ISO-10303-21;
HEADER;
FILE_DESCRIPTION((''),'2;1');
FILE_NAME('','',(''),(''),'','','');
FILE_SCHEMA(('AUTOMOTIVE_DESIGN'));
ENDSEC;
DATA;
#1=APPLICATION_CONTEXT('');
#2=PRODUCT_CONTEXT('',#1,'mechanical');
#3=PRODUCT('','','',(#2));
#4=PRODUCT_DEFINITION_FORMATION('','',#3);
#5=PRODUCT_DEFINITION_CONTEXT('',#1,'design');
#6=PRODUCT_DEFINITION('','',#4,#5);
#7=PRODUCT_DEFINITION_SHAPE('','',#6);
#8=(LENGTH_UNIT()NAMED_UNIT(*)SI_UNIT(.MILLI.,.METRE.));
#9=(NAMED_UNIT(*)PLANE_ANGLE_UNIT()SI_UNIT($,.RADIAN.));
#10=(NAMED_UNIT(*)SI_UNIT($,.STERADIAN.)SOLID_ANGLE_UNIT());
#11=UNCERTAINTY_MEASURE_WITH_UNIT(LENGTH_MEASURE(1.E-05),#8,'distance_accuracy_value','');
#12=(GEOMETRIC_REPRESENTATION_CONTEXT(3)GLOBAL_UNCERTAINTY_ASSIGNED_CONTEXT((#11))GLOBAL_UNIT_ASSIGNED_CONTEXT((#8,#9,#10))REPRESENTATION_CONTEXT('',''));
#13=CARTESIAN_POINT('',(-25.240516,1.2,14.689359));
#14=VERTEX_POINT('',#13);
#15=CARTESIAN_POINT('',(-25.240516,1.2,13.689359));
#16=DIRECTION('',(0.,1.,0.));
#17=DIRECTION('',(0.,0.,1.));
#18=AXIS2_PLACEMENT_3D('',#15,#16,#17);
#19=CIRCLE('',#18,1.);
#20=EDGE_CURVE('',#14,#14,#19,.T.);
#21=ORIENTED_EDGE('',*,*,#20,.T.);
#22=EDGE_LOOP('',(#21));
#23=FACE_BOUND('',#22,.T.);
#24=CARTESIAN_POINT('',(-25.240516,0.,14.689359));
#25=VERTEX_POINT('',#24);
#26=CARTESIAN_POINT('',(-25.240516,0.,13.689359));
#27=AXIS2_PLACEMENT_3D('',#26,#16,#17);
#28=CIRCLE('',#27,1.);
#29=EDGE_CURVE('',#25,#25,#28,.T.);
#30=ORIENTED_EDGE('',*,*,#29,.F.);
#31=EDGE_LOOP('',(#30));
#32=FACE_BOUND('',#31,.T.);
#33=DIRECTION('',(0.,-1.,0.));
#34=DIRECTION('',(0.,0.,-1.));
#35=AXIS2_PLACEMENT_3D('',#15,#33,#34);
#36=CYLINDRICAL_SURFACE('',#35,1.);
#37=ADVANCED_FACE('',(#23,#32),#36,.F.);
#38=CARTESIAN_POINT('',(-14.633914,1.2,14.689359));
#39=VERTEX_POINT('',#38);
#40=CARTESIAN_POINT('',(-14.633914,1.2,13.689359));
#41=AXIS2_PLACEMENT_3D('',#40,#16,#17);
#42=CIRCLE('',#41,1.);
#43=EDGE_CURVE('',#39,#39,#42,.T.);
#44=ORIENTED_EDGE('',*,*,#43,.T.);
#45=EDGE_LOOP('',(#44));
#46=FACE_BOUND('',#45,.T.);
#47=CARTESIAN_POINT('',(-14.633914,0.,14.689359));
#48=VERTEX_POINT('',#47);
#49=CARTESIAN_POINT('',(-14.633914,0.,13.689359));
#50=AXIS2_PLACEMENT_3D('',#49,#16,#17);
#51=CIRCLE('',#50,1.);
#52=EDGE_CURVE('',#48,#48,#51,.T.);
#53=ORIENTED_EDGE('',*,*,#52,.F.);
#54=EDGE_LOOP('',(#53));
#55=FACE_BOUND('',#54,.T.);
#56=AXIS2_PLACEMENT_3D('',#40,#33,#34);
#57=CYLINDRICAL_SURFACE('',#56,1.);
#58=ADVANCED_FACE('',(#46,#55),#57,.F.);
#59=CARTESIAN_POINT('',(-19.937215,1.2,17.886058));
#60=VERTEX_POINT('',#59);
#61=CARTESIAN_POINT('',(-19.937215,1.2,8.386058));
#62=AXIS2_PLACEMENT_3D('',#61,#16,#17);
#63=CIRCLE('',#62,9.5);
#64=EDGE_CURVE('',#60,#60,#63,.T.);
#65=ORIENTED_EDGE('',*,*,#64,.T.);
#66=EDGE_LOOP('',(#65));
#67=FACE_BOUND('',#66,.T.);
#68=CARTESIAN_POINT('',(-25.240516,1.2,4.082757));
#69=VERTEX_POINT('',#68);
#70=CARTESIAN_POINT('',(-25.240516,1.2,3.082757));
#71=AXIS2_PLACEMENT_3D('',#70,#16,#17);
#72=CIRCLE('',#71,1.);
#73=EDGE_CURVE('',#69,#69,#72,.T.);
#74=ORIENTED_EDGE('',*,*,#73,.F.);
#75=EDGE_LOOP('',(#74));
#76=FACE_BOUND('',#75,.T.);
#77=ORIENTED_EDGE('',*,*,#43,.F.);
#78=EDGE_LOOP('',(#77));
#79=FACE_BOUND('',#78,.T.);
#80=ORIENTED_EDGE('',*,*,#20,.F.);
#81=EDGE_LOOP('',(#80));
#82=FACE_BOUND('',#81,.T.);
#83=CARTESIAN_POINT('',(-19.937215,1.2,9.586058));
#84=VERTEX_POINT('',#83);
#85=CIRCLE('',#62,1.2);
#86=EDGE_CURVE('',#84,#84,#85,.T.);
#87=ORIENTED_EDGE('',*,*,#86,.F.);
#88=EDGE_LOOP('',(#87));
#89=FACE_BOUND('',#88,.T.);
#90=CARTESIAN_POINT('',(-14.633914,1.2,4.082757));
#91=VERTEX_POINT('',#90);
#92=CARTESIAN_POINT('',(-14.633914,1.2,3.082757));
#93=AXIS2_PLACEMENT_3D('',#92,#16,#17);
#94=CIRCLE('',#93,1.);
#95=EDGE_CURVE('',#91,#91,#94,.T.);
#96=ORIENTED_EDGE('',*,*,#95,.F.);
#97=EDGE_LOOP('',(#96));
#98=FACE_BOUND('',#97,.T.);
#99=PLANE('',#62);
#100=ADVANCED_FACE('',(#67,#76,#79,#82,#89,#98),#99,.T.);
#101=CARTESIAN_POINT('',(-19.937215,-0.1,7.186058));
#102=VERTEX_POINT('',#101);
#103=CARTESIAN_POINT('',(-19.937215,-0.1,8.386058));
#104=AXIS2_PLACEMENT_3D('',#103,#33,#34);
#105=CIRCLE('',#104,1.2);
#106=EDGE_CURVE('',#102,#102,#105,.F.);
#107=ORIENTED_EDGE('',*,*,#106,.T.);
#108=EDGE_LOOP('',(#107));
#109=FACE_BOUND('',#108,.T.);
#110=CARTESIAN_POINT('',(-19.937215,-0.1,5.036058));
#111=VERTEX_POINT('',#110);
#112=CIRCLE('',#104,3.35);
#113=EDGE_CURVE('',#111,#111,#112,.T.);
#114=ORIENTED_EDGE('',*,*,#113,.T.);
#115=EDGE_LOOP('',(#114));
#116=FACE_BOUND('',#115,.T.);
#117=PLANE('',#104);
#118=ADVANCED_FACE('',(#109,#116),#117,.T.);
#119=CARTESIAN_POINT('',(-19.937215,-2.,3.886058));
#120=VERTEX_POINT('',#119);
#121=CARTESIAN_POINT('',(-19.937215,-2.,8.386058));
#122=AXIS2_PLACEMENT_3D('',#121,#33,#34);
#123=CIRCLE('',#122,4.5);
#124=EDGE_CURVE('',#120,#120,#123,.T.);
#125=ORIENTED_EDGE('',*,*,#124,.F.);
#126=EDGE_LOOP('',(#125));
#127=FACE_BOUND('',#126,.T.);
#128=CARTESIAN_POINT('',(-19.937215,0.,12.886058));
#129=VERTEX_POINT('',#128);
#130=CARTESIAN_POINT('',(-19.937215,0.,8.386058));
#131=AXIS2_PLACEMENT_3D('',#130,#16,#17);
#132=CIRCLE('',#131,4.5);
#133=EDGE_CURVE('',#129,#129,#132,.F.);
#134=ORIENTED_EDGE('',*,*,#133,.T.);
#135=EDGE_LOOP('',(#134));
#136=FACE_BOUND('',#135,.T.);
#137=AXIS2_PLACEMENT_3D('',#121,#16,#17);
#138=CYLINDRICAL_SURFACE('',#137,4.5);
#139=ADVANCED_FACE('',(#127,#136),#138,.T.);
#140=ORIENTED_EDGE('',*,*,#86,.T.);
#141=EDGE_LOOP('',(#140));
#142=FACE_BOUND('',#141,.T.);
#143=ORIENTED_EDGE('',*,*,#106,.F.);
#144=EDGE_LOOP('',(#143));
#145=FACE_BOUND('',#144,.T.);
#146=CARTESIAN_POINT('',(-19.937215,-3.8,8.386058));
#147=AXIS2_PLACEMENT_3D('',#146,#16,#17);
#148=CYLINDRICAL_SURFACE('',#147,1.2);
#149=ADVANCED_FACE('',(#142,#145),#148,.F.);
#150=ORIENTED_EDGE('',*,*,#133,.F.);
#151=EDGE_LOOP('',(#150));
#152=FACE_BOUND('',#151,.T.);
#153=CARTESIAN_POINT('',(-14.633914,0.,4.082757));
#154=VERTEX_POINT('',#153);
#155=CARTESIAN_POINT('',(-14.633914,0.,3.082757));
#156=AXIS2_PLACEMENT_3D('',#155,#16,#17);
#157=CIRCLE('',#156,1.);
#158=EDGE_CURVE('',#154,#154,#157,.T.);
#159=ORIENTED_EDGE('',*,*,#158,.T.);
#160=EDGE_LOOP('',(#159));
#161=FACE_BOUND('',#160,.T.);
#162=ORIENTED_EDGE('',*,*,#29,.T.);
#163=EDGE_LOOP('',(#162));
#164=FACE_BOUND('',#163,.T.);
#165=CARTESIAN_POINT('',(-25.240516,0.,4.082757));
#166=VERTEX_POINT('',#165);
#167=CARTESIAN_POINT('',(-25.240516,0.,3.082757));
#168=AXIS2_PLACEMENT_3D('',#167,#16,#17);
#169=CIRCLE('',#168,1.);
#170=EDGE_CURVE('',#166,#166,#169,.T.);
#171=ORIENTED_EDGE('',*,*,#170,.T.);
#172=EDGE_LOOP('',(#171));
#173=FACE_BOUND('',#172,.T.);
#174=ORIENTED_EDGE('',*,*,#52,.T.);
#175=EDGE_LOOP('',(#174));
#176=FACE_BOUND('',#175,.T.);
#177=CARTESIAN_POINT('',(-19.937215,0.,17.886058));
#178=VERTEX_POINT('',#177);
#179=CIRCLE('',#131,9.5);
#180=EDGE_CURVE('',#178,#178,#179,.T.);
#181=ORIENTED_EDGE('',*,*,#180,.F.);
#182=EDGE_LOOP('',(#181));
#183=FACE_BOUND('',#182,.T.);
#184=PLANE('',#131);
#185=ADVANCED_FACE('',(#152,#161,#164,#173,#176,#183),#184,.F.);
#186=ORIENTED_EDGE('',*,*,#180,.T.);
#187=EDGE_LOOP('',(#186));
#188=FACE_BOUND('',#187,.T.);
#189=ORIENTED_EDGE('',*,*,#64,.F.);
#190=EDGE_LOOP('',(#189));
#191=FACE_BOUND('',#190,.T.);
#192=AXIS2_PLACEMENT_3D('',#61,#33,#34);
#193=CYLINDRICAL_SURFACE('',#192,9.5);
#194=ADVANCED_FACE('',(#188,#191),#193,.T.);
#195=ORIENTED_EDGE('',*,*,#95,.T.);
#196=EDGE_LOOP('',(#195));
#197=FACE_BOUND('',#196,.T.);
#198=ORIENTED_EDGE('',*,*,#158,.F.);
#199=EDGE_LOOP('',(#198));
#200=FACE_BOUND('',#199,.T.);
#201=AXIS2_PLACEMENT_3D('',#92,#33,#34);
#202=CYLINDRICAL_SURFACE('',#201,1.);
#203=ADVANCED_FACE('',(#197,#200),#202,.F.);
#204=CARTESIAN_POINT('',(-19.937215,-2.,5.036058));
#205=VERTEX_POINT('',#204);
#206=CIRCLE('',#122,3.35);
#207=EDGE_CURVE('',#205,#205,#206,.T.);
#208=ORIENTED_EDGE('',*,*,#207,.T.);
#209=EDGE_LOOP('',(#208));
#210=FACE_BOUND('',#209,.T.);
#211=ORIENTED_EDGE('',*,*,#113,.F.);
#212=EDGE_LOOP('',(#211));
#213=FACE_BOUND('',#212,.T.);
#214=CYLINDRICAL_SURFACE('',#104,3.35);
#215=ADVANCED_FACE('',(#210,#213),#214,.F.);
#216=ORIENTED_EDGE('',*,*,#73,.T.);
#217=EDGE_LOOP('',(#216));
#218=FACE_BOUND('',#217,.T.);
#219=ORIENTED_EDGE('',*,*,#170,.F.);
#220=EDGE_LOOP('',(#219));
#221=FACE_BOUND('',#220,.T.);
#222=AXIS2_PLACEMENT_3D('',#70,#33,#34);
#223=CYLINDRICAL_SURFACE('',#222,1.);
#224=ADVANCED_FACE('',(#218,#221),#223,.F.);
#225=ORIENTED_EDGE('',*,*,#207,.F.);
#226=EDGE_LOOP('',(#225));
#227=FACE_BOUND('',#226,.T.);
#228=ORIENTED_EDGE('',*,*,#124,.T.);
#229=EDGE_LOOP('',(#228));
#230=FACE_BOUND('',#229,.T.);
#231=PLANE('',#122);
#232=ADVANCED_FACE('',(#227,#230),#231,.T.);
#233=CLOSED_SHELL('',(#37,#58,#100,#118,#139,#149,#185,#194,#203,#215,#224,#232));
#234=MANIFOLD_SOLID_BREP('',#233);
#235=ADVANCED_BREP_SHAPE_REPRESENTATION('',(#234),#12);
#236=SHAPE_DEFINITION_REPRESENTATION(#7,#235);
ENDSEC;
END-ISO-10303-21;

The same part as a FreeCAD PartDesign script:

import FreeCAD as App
import Part
import Sketcher

V = App.Vector
Q = App.Units.Quantity

doc = App.newDocument("Part")
body = doc.addObject("PartDesign::Body", "Body")

sketch1 = body.newObject("Sketcher::SketchObject", "Sketch")
sketch1.AttachmentSupport = (doc.getObject("XZ_Plane"), [""])
sketch1.MapMode = "FlatFace"
sketch1.addGeometry(Part.Circle(V(-19.937215, 8.386058, 0), V(0, 0, 1), 9.5), False)
sketch1.addGeometry(Part.Circle(V(-25.240516, 13.689359, 0), V(0, 0, 1), 1), False)
sketch1.addGeometry(Part.Circle(V(-14.633914, 13.689359, 0), V(0, 0, 1), 1), False)
sketch1.addGeometry(Part.Circle(V(-25.240516, 3.082757, 0), V(0, 0, 1), 1), False)
sketch1.addGeometry(Part.Circle(V(-14.633914, 3.082757, 0), V(0, 0, 1), 1), False)
sketch1.addConstraint(Sketcher.Constraint("Equal", 1, 2))
sketch1.addConstraint(Sketcher.Constraint("Equal", 2, 3))
sketch1.addConstraint(Sketcher.Constraint("Equal", 3, 4))
sketch1.addConstraint(Sketcher.Constraint("Horizontal", 1, 3, 2, 3))
sketch1.addConstraint(Sketcher.Constraint("Horizontal", 3, 3, 4, 3))
sketch1.addConstraint(Sketcher.Constraint("Vertical", 1, 3, 3, 3))
sketch1.addConstraint(Sketcher.Constraint("Vertical", 2, 3, 4, 3))
sketch1.addConstraint(Sketcher.Constraint("Diameter", 0, Q("19 mm")))
sketch1.addConstraint(Sketcher.Constraint("Diameter", 1, Q("2 mm")))
sketch1.addConstraint(Sketcher.Constraint("DistanceX", 1, 3, 0, 3, Q("5.303301 mm")))
sketch1.addConstraint(Sketcher.Constraint("DistanceY", 0, 3, 1, 3, Q("5.303301 mm")))
sketch1.addConstraint(Sketcher.Constraint("DistanceX", 0, 3, 2, 3, Q("5.303301 mm")))
sketch1.addConstraint(Sketcher.Constraint("DistanceY", 3, 3, 0, 3, Q("5.303301 mm")))
sketch1.addConstraint(Sketcher.Constraint("DistanceY", -1, 1, 0, 3, Q("8.386058 mm")))
sketch1.addConstraint(Sketcher.Constraint("DistanceX", 0, 3, -1, 1, Q("19.937215 mm")))
pad1 = body.newObject("PartDesign::Pad", "Pad")
pad1.Profile = sketch1
pad1.Length = 1.2
pad1.Reversed = True

sketch2 = body.newObject("Sketcher::SketchObject", "Sketch001")
sketch2.AttachmentSupport = (doc.getObject("XZ_Plane"), [""])
sketch2.MapMode = "FlatFace"
sketch2.addGeometry(Part.Circle(V(-19.937215, 8.386058, 0), V(0, 0, 1), 4.5), False)
sketch2.addConstraint(Sketcher.Constraint("Diameter", 0, Q("9 mm")))
sketch2.addConstraint(Sketcher.Constraint("DistanceY", -1, 1, 0, 3, Q("8.386058 mm")))
sketch2.addConstraint(Sketcher.Constraint("DistanceX", 0, 3, -1, 1, Q("19.937215 mm")))
pad2 = body.newObject("PartDesign::Pad", "Pad001")
pad2.Profile = sketch2
pad2.Length = 2

sketch3 = body.newObject("Sketcher::SketchObject", "Sketch002")
sketch3.AttachmentSupport = (doc.getObject("XZ_Plane"), [""])
sketch3.MapMode = "FlatFace"
sketch3.AttachmentOffset = App.Placement(V(0, 0, -1.2), App.Rotation())
sketch3.addGeometry(Part.Circle(V(-19.937215, 8.386058, 0), V(0, 0, 1), 1.2), False)
sketch3.addConstraint(Sketcher.Constraint("Diameter", 0, Q("2.4 mm")))
sketch3.addConstraint(Sketcher.Constraint("DistanceY", -1, 1, 0, 3, Q("8.386058 mm")))
sketch3.addConstraint(Sketcher.Constraint("DistanceX", 0, 3, -1, 1, Q("19.937215 mm")))
pocket1 = body.newObject("PartDesign::Pocket", "Pocket")
pocket1.Profile = sketch3
pocket1.Length = 5
pocket1.Reversed = True

sketch4 = body.newObject("Sketcher::SketchObject", "Sketch003")
sketch4.AttachmentSupport = (doc.getObject("XZ_Plane"), [""])
sketch4.MapMode = "FlatFace"
sketch4.AttachmentOffset = App.Placement(V(0, 0, 2), App.Rotation())
sketch4.addGeometry(Part.Circle(V(-19.937215, 8.386058, 0), V(0, 0, 1), 3.35), False)
sketch4.addConstraint(Sketcher.Constraint("Diameter", 0, Q("6.7 mm")))
sketch4.addConstraint(Sketcher.Constraint("DistanceY", -1, 1, 0, 3, Q("8.386058 mm")))
sketch4.addConstraint(Sketcher.Constraint("DistanceX", 0, 3, -1, 1, Q("19.937215 mm")))
pocket2 = body.newObject("PartDesign::Pocket", "Pocket001")
pocket2.Profile = sketch4
pocket2.Length = 1.9

doc.recompute()
